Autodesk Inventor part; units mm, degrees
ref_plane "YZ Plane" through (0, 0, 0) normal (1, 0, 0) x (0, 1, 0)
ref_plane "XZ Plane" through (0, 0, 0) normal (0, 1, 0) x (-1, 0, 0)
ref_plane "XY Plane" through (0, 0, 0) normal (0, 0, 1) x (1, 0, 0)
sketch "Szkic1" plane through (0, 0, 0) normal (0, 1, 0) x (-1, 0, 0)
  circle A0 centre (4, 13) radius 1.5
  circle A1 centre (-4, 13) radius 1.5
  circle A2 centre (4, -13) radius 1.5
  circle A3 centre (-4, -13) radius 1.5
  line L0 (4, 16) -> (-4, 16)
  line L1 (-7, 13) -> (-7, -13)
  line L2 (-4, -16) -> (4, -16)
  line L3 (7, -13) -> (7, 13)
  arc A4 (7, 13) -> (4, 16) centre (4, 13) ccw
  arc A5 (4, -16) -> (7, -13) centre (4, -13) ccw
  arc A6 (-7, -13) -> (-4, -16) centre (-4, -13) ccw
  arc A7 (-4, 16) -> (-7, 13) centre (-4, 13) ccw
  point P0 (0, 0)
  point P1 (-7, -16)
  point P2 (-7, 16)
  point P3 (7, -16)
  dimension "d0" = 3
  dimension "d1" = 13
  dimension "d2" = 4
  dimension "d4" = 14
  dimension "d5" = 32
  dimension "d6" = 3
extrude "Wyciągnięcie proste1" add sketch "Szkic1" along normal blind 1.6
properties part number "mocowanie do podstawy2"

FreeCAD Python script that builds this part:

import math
import FreeCAD as App
import Part
import Sketcher

doc = App.newDocument("Part")
body = doc.addObject("PartDesign::Body", "Body")

# Sketch on XZ plane
sketch1 = body.newObject("Sketcher::SketchObject", "Sketch")
sketch1.AttachmentSupport = (doc.getObject("XZ_Plane"), [""])
sketch1.MapMode = "FlatFace"
sketch1.addGeometry(Part.ArcOfCircle(Part.Circle(App.Vector(-4, 13, 0), App.Vector(0, 0, 1), 3), math.radians(90), math.radians(180)), False)
sketch1.addGeometry(Part.LineSegment(App.Vector(-4, 16, 0), App.Vector(4, 16, 0)), False)
sketch1.addGeometry(Part.ArcOfCircle(Part.Circle(App.Vector(4, 13, 0), App.Vector(0, 0, 1), 3), math.radians(0), math.radians(90)), False)
sketch1.addGeometry(Part.LineSegment(App.Vector(7, 13, 0), App.Vector(7, -13, 0)), False)
sketch1.addGeometry(Part.ArcOfCircle(Part.Circle(App.Vector(4, -13, 0), App.Vector(0, 0, 1), 3), math.radians(-90), math.radians(0)), False)
sketch1.addGeometry(Part.LineSegment(App.Vector(4, -16, 0), App.Vector(-4, -16, 0)), False)
sketch1.addGeometry(Part.ArcOfCircle(Part.Circle(App.Vector(-4, -13, 0), App.Vector(0, 0, 1), 3), math.radians(180), math.radians(270)), False)
sketch1.addGeometry(Part.LineSegment(App.Vector(-7, -13, 0), App.Vector(-7, 13, 0)), False)
sketch1.addGeometry(Part.Circle(App.Vector(4, -13, 0), App.Vector(0, 0, 1), 1.5), False)
sketch1.addGeometry(Part.Circle(App.Vector(-4, -13, 0), App.Vector(0, 0, 1), 1.5), False)
sketch1.addGeometry(Part.Circle(App.Vector(4, 13, 0), App.Vector(0, 0, 1), 1.5), False)
sketch1.addGeometry(Part.Circle(App.Vector(-4, 13, 0), App.Vector(0, 0, 1), 1.5), False)
sketch1.addConstraint(Sketcher.Constraint("Tangent", 0, 1, 1, 1))
sketch1.addConstraint(Sketcher.Constraint("Tangent", 1, 2, 2, 2))
sketch1.addConstraint(Sketcher.Constraint("Tangent", 2, 1, 3, 1))
sketch1.addConstraint(Sketcher.Constraint("Tangent", 3, 2, 4, 2))
sketch1.addConstraint(Sketcher.Constraint("Tangent", 4, 1, 5, 1))
sketch1.addConstraint(Sketcher.Constraint("Tangent", 5, 2, 6, 2))
sketch1.addConstraint(Sketcher.Constraint("Tangent", 6, 1, 7, 1))
sketch1.addConstraint(Sketcher.Constraint("Tangent", 7, 2, 0, 2))
sketch1.addConstraint(Sketcher.Constraint("Horizontal", 1))
sketch1.addConstraint(Sketcher.Constraint("Vertical", 3))
sketch1.addConstraint(Sketcher.Constraint("Horizontal", 5))
sketch1.addConstraint(Sketcher.Constraint("Vertical", 7))
sketch1.addConstraint(Sketcher.Constraint("Coincident", 8, 3, 4, 3))
sketch1.addConstraint(Sketcher.Constraint("Coincident", 9, 3, 6, 3))
sketch1.addConstraint(Sketcher.Constraint("Coincident", 10, 3, 2, 3))
sketch1.addConstraint(Sketcher.Constraint("Coincident", 11, 3, 0, 3))
sketch1.addConstraint(Sketcher.Constraint("Equal", 0, 2))
sketch1.addConstraint(Sketcher.Constraint("Equal", 2, 4))
sketch1.addConstraint(Sketcher.Constraint("Equal", 4, 6))
sketch1.addConstraint(Sketcher.Constraint("Equal", 8, 9))
sketch1.addConstraint(Sketcher.Constraint("Equal", 9, 10))
sketch1.addConstraint(Sketcher.Constraint("Equal", 10, 11))
sketch1.addConstraint(Sketcher.Constraint("Symmetric", 0, 3, 4, 3, -1, 1))
sketch1.addConstraint(Sketcher.Constraint("Diameter", 8, 3.0))
sketch1.addConstraint(Sketcher.Constraint("Radius", 0, 3.0))
sketch1.addConstraint(Sketcher.Constraint("DistanceX", 0, 3, -1, 1, 4.0))
sketch1.addConstraint(Sketcher.Constraint("DistanceY", -1, 1, 0, 3, 13.0))
pad1 = body.newObject("PartDesign::Pad", "Pad")
pad1.Profile = sketch1
pad1.Length = 1.6
pad1.Reversed = True

doc.recompute()
